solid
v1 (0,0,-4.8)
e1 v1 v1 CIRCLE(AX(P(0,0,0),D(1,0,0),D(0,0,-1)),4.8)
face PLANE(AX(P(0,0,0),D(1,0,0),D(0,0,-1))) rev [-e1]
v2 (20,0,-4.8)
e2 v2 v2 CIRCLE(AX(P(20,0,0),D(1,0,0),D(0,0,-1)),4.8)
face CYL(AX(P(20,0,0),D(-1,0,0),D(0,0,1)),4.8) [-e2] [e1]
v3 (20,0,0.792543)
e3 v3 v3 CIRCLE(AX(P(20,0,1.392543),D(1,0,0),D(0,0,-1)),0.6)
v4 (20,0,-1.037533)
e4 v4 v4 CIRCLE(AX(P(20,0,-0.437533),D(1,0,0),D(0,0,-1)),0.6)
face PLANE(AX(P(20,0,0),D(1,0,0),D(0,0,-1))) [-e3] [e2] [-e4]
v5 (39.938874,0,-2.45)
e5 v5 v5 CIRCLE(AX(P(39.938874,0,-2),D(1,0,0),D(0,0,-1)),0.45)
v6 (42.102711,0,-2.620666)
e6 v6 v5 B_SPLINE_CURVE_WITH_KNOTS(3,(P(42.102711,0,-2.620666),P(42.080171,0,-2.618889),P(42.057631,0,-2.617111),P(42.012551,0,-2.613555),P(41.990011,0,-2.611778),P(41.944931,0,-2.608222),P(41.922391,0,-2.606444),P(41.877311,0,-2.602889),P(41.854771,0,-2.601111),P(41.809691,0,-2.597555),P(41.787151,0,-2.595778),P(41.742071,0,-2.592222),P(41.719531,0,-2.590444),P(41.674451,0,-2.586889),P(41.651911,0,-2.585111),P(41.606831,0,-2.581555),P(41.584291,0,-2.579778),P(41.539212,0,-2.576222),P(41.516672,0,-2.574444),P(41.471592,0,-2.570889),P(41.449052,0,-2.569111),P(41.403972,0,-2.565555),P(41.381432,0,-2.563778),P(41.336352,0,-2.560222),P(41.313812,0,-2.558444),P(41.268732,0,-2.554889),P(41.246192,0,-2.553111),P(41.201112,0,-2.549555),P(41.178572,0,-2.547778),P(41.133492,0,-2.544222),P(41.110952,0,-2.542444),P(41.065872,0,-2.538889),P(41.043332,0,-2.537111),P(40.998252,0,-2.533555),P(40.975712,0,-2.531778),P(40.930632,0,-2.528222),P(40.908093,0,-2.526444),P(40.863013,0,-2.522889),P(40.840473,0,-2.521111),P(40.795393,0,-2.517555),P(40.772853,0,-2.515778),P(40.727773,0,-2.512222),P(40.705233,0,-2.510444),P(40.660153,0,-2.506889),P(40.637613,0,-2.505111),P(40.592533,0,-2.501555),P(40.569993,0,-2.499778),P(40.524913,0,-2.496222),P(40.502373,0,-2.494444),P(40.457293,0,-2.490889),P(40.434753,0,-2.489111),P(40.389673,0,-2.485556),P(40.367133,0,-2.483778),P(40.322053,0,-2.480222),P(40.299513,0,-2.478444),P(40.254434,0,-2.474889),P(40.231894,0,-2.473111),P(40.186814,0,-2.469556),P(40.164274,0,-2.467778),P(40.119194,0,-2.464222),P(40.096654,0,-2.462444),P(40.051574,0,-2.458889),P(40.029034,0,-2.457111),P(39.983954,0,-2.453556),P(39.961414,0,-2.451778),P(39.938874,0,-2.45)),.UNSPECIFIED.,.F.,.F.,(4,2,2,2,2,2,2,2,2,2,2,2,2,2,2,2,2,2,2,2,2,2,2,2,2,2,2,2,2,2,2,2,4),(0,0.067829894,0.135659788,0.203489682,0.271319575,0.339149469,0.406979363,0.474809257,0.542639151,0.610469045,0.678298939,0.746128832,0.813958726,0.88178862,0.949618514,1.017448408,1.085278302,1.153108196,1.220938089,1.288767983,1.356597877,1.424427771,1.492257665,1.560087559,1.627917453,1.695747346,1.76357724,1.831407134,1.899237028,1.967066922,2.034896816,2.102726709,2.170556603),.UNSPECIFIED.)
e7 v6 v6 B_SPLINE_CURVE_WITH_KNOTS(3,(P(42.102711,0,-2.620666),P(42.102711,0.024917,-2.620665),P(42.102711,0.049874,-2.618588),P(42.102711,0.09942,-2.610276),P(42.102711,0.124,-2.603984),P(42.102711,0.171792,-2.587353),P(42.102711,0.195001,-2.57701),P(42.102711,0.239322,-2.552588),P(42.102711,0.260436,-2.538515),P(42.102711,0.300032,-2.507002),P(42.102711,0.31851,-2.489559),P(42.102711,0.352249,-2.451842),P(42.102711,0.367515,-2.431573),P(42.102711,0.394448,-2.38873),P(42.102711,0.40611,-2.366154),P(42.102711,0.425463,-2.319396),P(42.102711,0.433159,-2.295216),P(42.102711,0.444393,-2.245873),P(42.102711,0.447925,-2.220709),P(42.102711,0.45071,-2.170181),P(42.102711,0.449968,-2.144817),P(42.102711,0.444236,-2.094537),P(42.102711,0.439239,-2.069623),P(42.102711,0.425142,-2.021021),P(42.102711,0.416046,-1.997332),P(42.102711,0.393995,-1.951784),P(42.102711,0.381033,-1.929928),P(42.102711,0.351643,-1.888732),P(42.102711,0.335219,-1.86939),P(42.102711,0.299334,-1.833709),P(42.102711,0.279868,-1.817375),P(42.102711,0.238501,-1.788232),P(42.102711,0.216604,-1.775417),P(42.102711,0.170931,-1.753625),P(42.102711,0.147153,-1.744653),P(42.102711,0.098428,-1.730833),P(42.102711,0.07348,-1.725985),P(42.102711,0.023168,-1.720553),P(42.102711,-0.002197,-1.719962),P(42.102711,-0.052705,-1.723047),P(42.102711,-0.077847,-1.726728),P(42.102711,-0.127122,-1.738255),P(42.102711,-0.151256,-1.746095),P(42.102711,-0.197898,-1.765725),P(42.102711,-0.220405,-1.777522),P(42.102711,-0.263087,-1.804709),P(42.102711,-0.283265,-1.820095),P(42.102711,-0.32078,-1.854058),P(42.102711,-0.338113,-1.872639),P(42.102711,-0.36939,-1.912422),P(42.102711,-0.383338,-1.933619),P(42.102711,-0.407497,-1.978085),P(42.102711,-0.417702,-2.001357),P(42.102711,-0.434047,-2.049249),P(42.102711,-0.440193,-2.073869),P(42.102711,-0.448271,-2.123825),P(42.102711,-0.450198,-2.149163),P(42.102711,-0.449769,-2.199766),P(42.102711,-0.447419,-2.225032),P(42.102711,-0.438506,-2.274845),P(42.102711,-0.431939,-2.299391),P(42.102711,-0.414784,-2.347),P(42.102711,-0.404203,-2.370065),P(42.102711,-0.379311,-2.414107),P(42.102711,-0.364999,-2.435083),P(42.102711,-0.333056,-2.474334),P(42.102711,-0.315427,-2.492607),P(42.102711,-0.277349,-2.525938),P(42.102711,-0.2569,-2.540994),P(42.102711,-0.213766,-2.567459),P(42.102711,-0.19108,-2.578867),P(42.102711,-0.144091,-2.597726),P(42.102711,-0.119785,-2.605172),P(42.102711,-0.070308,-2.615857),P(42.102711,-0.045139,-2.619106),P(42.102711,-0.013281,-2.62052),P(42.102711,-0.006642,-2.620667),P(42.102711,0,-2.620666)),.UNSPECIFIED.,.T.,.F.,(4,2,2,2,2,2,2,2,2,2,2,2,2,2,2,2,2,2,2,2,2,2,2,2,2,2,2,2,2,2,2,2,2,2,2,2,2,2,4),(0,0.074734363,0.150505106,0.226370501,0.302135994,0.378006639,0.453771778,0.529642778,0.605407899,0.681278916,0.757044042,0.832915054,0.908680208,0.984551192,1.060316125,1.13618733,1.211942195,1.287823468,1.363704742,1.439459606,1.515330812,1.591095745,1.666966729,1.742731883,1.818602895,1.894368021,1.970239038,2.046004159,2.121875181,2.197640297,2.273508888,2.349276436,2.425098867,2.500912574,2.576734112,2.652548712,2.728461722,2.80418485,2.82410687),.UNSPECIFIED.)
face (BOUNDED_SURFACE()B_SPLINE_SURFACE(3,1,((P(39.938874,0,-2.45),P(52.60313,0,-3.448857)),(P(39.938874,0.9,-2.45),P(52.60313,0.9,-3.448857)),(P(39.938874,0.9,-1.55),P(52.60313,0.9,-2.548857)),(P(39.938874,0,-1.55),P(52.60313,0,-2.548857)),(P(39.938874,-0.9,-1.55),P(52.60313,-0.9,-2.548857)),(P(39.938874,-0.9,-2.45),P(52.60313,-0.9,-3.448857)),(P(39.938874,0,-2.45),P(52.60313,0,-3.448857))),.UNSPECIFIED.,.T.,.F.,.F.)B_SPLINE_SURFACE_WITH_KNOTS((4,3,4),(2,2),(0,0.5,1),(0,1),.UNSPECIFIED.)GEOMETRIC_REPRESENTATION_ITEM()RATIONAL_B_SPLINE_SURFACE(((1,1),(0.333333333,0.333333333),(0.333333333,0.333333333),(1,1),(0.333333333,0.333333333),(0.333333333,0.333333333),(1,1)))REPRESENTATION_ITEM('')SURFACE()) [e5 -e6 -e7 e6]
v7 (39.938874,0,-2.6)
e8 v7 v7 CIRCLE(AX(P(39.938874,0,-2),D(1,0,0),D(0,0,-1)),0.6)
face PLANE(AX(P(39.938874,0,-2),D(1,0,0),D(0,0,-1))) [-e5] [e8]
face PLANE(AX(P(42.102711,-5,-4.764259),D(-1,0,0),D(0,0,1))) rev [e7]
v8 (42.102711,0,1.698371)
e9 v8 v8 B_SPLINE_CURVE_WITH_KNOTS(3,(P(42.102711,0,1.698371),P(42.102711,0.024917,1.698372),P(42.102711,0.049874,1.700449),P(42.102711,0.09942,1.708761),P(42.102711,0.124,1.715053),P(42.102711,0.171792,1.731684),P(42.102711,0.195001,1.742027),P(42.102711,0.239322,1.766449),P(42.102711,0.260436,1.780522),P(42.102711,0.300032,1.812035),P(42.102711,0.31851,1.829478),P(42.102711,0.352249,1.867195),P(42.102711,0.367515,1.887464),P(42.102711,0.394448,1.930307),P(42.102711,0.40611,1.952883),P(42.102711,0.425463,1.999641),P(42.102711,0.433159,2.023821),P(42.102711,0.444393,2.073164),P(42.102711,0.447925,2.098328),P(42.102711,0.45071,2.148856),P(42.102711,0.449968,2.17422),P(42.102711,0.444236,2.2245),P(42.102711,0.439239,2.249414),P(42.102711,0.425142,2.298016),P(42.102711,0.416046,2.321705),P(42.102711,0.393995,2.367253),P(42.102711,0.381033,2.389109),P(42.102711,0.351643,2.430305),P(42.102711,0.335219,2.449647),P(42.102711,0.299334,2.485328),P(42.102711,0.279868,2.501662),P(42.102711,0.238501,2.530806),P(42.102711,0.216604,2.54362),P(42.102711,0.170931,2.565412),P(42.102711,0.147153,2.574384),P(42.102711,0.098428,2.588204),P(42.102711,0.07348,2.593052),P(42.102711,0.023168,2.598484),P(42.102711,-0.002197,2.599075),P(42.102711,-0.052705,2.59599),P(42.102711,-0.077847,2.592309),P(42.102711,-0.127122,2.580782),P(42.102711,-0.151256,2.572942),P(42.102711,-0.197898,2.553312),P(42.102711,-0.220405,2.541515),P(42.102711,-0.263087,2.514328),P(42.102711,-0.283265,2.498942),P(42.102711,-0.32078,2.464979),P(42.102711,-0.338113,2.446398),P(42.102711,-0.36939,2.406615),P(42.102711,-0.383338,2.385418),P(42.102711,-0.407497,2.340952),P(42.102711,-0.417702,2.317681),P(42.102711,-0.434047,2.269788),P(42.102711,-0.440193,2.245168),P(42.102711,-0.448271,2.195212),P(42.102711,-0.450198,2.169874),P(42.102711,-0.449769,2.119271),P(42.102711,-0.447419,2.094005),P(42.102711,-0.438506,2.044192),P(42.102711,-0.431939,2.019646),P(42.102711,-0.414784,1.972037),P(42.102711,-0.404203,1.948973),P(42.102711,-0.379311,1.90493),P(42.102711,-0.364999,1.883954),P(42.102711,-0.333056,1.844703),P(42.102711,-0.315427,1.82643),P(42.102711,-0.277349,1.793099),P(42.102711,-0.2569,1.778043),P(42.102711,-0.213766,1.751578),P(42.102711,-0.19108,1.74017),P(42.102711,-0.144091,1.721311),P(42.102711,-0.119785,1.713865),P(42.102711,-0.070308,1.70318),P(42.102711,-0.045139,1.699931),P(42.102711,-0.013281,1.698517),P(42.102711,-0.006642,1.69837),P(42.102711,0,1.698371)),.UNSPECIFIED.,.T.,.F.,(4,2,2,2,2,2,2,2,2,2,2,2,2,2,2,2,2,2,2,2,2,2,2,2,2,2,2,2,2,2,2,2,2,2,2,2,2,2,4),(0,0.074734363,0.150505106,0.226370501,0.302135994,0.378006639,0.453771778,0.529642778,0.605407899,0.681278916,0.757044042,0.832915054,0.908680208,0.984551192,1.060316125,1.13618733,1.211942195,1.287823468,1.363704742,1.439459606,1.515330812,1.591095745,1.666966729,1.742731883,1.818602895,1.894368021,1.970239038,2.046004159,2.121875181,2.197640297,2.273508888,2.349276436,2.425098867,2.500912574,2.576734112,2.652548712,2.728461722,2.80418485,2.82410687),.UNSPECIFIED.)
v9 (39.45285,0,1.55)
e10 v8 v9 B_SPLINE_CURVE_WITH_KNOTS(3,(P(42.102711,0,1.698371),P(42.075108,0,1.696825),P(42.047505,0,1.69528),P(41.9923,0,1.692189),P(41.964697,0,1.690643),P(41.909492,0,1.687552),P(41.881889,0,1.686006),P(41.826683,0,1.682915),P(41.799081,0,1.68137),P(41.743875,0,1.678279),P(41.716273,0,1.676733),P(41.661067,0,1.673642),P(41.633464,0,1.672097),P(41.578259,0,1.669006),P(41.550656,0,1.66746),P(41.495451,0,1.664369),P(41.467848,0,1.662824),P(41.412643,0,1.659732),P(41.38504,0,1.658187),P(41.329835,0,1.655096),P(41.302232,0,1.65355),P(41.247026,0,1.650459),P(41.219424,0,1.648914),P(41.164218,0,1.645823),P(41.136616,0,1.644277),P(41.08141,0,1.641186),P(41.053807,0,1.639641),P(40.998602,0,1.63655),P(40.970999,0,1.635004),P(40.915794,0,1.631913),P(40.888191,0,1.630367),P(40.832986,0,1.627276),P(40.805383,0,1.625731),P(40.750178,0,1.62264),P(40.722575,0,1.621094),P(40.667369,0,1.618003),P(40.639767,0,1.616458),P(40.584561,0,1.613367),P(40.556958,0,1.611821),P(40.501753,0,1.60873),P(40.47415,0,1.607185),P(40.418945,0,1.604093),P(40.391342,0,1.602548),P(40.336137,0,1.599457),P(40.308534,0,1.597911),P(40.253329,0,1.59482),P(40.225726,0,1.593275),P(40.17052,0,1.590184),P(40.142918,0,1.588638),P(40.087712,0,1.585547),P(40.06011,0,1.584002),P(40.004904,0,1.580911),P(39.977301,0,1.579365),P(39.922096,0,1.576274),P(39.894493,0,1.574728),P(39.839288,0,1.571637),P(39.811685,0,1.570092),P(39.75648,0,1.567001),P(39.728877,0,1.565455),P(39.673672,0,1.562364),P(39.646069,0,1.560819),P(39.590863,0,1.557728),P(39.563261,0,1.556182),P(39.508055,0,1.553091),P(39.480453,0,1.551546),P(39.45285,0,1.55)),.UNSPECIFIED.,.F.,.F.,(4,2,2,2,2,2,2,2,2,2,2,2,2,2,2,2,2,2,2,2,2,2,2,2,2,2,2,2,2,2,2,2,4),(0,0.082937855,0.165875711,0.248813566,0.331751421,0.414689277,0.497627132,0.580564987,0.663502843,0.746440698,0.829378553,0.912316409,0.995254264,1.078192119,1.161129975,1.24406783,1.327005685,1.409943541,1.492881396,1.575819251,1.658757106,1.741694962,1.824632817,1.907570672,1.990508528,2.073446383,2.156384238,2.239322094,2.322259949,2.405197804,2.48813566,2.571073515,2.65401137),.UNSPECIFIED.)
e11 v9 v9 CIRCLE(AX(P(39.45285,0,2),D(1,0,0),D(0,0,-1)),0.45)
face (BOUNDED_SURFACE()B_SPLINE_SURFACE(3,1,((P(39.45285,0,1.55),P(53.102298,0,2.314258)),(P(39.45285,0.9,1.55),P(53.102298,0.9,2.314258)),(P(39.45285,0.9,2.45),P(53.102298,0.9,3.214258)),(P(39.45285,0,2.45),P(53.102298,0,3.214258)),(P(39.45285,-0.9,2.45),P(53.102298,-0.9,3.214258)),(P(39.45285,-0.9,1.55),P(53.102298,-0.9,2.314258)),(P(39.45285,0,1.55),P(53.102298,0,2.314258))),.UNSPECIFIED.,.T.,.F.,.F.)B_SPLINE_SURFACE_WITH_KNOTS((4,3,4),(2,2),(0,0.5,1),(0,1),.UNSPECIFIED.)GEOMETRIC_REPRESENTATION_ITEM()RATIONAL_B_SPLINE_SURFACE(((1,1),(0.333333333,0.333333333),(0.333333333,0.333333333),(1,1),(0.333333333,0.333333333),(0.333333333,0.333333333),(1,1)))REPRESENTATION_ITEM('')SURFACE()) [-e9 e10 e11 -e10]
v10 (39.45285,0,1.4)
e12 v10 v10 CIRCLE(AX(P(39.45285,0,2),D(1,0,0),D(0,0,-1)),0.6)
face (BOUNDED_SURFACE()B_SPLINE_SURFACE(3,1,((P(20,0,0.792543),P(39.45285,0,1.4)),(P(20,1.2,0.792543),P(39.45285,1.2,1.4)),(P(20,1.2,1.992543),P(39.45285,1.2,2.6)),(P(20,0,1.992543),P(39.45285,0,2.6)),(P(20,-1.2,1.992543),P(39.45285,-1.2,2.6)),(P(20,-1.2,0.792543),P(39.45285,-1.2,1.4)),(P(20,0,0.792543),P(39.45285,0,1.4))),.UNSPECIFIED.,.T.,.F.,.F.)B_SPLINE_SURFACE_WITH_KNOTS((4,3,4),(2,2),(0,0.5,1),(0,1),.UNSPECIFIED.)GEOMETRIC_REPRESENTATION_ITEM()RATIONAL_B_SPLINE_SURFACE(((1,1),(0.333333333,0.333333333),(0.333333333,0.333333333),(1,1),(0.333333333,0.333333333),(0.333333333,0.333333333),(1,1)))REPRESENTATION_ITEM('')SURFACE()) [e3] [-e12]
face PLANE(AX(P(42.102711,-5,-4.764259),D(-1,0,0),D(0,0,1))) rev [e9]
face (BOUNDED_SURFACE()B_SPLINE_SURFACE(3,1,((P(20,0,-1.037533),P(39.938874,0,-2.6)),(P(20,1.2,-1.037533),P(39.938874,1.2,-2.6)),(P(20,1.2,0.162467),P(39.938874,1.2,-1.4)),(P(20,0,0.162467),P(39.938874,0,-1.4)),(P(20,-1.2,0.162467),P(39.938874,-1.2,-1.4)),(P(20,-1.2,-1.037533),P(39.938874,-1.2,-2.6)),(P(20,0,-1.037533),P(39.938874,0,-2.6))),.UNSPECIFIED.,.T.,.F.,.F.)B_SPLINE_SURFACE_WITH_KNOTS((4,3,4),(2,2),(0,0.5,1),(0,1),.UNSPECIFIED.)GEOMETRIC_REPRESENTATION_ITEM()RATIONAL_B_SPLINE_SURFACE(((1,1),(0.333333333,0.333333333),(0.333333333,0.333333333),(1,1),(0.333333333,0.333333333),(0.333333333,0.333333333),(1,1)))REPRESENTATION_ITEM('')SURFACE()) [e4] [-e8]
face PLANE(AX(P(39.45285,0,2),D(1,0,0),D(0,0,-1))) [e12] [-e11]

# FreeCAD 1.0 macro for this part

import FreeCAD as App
import Part
import Sketcher
from FreeCAD import Vector

doc = App.newDocument("Part")
body = doc.addObject("PartDesign::Body", "Body")

# Sketch on YZ plane
sketch1 = doc.addObject("Sketcher::SketchObject", "Sketch")
body.addObject(sketch1)
sketch1.AttachmentSupport = (doc.YZ_Plane, [""])
sketch1.MapMode = "FlatFace"
sketch1.addGeometry(Part.Circle(Vector(0, 0, 0), Vector(0, 0, 1), 4.8), False)
sketch1.addConstraint(Sketcher.Constraint("Coincident", 0, 3, -1, 1))
sketch1.addConstraint(Sketcher.Constraint("Diameter", 0, 9.6))
pad1 = doc.addObject("PartDesign::Pad", "Pad")
body.addObject(pad1)
pad1.Profile = sketch1
pad1.Length = 20

# Sketch on YZ plane
sketch2 = doc.addObject("Sketcher::SketchObject", "Sketch001")
body.addObject(sketch2)
sketch2.AttachmentSupport = (doc.YZ_Plane, [""])
sketch2.MapMode = "FlatFace"
sketch2.AttachmentOffset = App.Placement(Vector(0, 0, 20), App.Rotation())
sketch2.addGeometry(Part.Circle(Vector(0, -0.4, 0), Vector(0, 0, 1), 0.6), False)
sketch2.addConstraint(Sketcher.Constraint("PointOnObject", 0, 3, -2))
sketch2.addConstraint(Sketcher.Constraint("Diameter", 0, 1.2))
sketch2.addConstraint(Sketcher.Constraint("DistanceY", 0, 3, -1, 1, 0.437533))

# Sketch on an angled plane
sketch3 = doc.addObject("Sketcher::SketchObject", "Sketch002")
body.addObject(sketch3)
sketch3.Placement = App.Placement(Vector(0.087988, 0, 1.122829), App.Rotation(Vector(0.996943702, 0, -0.078123337), Vector(0, 1.000000001, 0), Vector(0.078123337, 0, 0.996943702), "ZXY"))
sketch3.addGeometry(Part.LineSegment(Vector(20, 0, 0), Vector(40, 0, 0)), False)
sketch3.addConstraint(Sketcher.Constraint("Horizontal", 0))
sketch3.addConstraint(Sketcher.Constraint("PointOnObject", 0, 1, -1))
sketch3.addConstraint(Sketcher.Constraint("DistanceX", 0, 1, 0, 2, 20.0))
sketch3.addConstraint(Sketcher.Constraint("DistanceX", -1, 1, 0, 1, 19.973056))
doc.recompute()

additivepipe = doc.addObject("PartDesign::AdditivePipe", "AdditivePipe")
body.addObject(additivepipe)
additivepipe.Profile = sketch2
additivepipe.Spine = (sketch3, ["Edge1"])

# Sketch on YZ plane
sketch4 = doc.addObject("Sketcher::SketchObject", "Sketch003")
body.addObject(sketch4)
sketch4.AttachmentSupport = (doc.YZ_Plane, [""])
sketch4.MapMode = "FlatFace"
sketch4.AttachmentOffset = App.Placement(Vector(0, 0, 20), App.Rotation())
sketch4.addGeometry(Part.Circle(Vector(0, 1.4, 0), Vector(0, 0, 1), 0.6), False)
sketch4.addConstraint(Sketcher.Constraint("PointOnObject", 0, 3, -2))
sketch4.addConstraint(Sketcher.Constraint("Diameter", 0, 1.2))
sketch4.addConstraint(Sketcher.Constraint("DistanceY", -1, 1, 0, 3, 1.392543))

# Sketch on an angled plane
sketch5 = doc.addObject("Sketcher::SketchObject", "Sketch004")
body.addObject(sketch5)
sketch5.Placement = App.Placement(Vector(-0.023959, 0, 0.767253), App.Rotation(Vector(0.99951279, 0, 0.031211909), Vector(0, 1.000000001, 0), Vector(-0.031211909, 0, 0.99951279), "ZXY"))
sketch5.addGeometry(Part.LineSegment(Vector(20, 0, 0), Vector(39, 0, 0)), False)
sketch5.addConstraint(Sketcher.Constraint("Horizontal", 0))
sketch5.addConstraint(Sketcher.Constraint("PointOnObject", 0, 1, -1))
sketch5.addConstraint(Sketcher.Constraint("DistanceX", 0, 1, 0, 2, 19.462332))
sketch5.addConstraint(Sketcher.Constraint("DistanceX", -1, 1, 0, 1, 20.03372))
doc.recompute()

additivepipe2 = doc.addObject("PartDesign::AdditivePipe", "AdditivePipe001")
body.addObject(additivepipe2)
additivepipe2.Profile = sketch4
additivepipe2.Spine = (sketch5, ["Edge1"])

# Sketch on YZ plane
sketch6 = doc.addObject("Sketcher::SketchObject", "Sketch005")
body.addObject(sketch6)
sketch6.AttachmentSupport = (doc.YZ_Plane, [""])
sketch6.MapMode = "FlatFace"
sketch6.AttachmentOffset = App.Placement(Vector(0, 0, 39.938874), App.Rotation())
sketch6.addGeometry(Part.Circle(Vector(0, -2, 0), Vector(0, 0, 1), 0.45), False)
sketch6.addConstraint(Sketcher.Constraint("PointOnObject", 0, 3, -2))
sketch6.addConstraint(Sketcher.Constraint("Diameter", 0, 0.9))
sketch6.addConstraint(Sketcher.Constraint("DistanceY", 0, 3, -1, 1, 2.0))

# Sketch on an angled plane
sketch7 = doc.addObject("Sketcher::SketchObject", "Sketch006")
body.addObject(sketch7)
sketch7.Placement = App.Placement(Vector(0.090147, 0, 1.142954), App.Rotation(Vector(0.996904031, 0, -0.078627947), Vector(0, 1.000000001, 0), Vector(0.078627947, 0, 0.996904031), "ZXY"))
sketch7.addGeometry(Part.LineSegment(Vector(40, 0, 0), Vector(53, 0, 0)), False)
sketch7.addConstraint(Sketcher.Constraint("Horizontal", 0))
sketch7.addConstraint(Sketcher.Constraint("PointOnObject", 0, 1, -1))
sketch7.addConstraint(Sketcher.Constraint("DistanceX", 0, 1, 0, 2, 12.703586))
sketch7.addConstraint(Sketcher.Constraint("DistanceX", -1, 1, 0, 1, 39.97248))
doc.recompute()

additivepipe3 = doc.addObject("PartDesign::AdditivePipe", "AdditivePipe002")
body.addObject(additivepipe3)
additivepipe3.Profile = sketch6
additivepipe3.Spine = (sketch7, ["Edge1"])

# Sketch on YZ plane
sketch8 = doc.addObject("Sketcher::SketchObject", "Sketch007")
body.addObject(sketch8)
sketch8.AttachmentSupport = (doc.YZ_Plane, [""])
sketch8.MapMode = "FlatFace"
sketch8.AttachmentOffset = App.Placement(Vector(0, 0, 39.45285), App.Rotation())
sketch8.addGeometry(Part.Circle(Vector(0, 2, 0), Vector(0, 0, 1), 0.45), False)
sketch8.addConstraint(Sketcher.Constraint("PointOnObject", 0, 3, -2))
sketch8.addConstraint(Sketcher.Constraint("Diameter", 0, 0.9))
sketch8.addConstraint(Sketcher.Constraint("DistanceY", -1, 1, 0, 3, 2.0))

# Sketch on an angled plane
sketch9 = doc.addObject("Sketcher::SketchObject", "Sketch008")
body.addObject(sketch9)
sketch9.Placement = App.Placement(Vector(0.011668, 0, -0.208385), App.Rotation(Vector(0.998436132, 0, 0.055904298), Vector(0, 1, 0), Vector(-0.055904298, 0, 0.998436132), "ZXY"))
sketch9.addGeometry(Part.LineSegment(Vector(40, 0, 0), Vector(53, 0, 0)), False)
sketch9.addConstraint(Sketcher.Constraint("Horizontal", 0))
sketch9.addConstraint(Sketcher.Constraint("PointOnObject", 0, 1, -1))
sketch9.addConstraint(Sketcher.Constraint("DistanceX", 0, 1, 0, 2, 13.670827))
sketch9.addConstraint(Sketcher.Constraint("DistanceX", -1, 1, 0, 1, 39.502959))
doc.recompute()

additivepipe4 = doc.addObject("PartDesign::AdditivePipe", "AdditivePipe003")
body.addObject(additivepipe4)
additivepipe4.Profile = sketch8
additivepipe4.Spine = (sketch9, ["Edge1"])

# Sketch on XZ plane
sketch10 = doc.addObject("Sketcher::SketchObject", "Sketch009")
body.addObject(sketch10)
sketch10.AttachmentSupport = (doc.XZ_Plane, [""])
sketch10.MapMode = "FlatFace"
sketch10.addGeometry(Part.LineSegment(Vector(42, -5, 0), Vector(42, 5, 0)), False)
sketch10.addGeometry(Part.LineSegment(Vector(42, 5, 0), Vector(55, 5, 0)), False)
sketch10.addGeometry(Part.LineSegment(Vector(55, 5, 0), Vector(55, -5, 0)), False)
sketch10.addGeometry(Part.LineSegment(Vector(55, -5, 0), Vector(42, -5, 0)), False)
sketch10.addConstraint(Sketcher.Constraint("Coincident", 0, 2, 1, 1))
sketch10.addConstraint(Sketcher.Constraint("Coincident", 1, 2, 2, 1))
sketch10.addConstraint(Sketcher.Constraint("Coincident", 2, 2, 3, 1))
sketch10.addConstraint(Sketcher.Constraint("Coincident", 3, 2, 0, 1))
sketch10.addConstraint(Sketcher.Constraint("Vertical", 0))
sketch10.addConstraint(Sketcher.Constraint("Horizontal", 1))
sketch10.addConstraint(Sketcher.Constraint("Vertical", 2))
sketch10.addConstraint(Sketcher.Constraint("Horizontal", 3))
sketch10.addConstraint(Sketcher.Constraint("DistanceX", 1, 1, 1, 2, 12.950896))
sketch10.addConstraint(Sketcher.Constraint("DistanceY", 0, 1, 0, 2, 9.583917))
sketch10.addConstraint(Sketcher.Constraint("DistanceX", -1, 1, 0, 2, 42.102711))
sketch10.addConstraint(Sketcher.Constraint("DistanceY", 2, 2, -1, 1, 4.764259))
pocket1 = doc.addObject("PartDesign::Pocket", "Pocket")
body.addObject(pocket1)
pocket1.Profile = sketch10
pocket1.Length = 10
pocket1.Midplane = True

doc.recompute()
